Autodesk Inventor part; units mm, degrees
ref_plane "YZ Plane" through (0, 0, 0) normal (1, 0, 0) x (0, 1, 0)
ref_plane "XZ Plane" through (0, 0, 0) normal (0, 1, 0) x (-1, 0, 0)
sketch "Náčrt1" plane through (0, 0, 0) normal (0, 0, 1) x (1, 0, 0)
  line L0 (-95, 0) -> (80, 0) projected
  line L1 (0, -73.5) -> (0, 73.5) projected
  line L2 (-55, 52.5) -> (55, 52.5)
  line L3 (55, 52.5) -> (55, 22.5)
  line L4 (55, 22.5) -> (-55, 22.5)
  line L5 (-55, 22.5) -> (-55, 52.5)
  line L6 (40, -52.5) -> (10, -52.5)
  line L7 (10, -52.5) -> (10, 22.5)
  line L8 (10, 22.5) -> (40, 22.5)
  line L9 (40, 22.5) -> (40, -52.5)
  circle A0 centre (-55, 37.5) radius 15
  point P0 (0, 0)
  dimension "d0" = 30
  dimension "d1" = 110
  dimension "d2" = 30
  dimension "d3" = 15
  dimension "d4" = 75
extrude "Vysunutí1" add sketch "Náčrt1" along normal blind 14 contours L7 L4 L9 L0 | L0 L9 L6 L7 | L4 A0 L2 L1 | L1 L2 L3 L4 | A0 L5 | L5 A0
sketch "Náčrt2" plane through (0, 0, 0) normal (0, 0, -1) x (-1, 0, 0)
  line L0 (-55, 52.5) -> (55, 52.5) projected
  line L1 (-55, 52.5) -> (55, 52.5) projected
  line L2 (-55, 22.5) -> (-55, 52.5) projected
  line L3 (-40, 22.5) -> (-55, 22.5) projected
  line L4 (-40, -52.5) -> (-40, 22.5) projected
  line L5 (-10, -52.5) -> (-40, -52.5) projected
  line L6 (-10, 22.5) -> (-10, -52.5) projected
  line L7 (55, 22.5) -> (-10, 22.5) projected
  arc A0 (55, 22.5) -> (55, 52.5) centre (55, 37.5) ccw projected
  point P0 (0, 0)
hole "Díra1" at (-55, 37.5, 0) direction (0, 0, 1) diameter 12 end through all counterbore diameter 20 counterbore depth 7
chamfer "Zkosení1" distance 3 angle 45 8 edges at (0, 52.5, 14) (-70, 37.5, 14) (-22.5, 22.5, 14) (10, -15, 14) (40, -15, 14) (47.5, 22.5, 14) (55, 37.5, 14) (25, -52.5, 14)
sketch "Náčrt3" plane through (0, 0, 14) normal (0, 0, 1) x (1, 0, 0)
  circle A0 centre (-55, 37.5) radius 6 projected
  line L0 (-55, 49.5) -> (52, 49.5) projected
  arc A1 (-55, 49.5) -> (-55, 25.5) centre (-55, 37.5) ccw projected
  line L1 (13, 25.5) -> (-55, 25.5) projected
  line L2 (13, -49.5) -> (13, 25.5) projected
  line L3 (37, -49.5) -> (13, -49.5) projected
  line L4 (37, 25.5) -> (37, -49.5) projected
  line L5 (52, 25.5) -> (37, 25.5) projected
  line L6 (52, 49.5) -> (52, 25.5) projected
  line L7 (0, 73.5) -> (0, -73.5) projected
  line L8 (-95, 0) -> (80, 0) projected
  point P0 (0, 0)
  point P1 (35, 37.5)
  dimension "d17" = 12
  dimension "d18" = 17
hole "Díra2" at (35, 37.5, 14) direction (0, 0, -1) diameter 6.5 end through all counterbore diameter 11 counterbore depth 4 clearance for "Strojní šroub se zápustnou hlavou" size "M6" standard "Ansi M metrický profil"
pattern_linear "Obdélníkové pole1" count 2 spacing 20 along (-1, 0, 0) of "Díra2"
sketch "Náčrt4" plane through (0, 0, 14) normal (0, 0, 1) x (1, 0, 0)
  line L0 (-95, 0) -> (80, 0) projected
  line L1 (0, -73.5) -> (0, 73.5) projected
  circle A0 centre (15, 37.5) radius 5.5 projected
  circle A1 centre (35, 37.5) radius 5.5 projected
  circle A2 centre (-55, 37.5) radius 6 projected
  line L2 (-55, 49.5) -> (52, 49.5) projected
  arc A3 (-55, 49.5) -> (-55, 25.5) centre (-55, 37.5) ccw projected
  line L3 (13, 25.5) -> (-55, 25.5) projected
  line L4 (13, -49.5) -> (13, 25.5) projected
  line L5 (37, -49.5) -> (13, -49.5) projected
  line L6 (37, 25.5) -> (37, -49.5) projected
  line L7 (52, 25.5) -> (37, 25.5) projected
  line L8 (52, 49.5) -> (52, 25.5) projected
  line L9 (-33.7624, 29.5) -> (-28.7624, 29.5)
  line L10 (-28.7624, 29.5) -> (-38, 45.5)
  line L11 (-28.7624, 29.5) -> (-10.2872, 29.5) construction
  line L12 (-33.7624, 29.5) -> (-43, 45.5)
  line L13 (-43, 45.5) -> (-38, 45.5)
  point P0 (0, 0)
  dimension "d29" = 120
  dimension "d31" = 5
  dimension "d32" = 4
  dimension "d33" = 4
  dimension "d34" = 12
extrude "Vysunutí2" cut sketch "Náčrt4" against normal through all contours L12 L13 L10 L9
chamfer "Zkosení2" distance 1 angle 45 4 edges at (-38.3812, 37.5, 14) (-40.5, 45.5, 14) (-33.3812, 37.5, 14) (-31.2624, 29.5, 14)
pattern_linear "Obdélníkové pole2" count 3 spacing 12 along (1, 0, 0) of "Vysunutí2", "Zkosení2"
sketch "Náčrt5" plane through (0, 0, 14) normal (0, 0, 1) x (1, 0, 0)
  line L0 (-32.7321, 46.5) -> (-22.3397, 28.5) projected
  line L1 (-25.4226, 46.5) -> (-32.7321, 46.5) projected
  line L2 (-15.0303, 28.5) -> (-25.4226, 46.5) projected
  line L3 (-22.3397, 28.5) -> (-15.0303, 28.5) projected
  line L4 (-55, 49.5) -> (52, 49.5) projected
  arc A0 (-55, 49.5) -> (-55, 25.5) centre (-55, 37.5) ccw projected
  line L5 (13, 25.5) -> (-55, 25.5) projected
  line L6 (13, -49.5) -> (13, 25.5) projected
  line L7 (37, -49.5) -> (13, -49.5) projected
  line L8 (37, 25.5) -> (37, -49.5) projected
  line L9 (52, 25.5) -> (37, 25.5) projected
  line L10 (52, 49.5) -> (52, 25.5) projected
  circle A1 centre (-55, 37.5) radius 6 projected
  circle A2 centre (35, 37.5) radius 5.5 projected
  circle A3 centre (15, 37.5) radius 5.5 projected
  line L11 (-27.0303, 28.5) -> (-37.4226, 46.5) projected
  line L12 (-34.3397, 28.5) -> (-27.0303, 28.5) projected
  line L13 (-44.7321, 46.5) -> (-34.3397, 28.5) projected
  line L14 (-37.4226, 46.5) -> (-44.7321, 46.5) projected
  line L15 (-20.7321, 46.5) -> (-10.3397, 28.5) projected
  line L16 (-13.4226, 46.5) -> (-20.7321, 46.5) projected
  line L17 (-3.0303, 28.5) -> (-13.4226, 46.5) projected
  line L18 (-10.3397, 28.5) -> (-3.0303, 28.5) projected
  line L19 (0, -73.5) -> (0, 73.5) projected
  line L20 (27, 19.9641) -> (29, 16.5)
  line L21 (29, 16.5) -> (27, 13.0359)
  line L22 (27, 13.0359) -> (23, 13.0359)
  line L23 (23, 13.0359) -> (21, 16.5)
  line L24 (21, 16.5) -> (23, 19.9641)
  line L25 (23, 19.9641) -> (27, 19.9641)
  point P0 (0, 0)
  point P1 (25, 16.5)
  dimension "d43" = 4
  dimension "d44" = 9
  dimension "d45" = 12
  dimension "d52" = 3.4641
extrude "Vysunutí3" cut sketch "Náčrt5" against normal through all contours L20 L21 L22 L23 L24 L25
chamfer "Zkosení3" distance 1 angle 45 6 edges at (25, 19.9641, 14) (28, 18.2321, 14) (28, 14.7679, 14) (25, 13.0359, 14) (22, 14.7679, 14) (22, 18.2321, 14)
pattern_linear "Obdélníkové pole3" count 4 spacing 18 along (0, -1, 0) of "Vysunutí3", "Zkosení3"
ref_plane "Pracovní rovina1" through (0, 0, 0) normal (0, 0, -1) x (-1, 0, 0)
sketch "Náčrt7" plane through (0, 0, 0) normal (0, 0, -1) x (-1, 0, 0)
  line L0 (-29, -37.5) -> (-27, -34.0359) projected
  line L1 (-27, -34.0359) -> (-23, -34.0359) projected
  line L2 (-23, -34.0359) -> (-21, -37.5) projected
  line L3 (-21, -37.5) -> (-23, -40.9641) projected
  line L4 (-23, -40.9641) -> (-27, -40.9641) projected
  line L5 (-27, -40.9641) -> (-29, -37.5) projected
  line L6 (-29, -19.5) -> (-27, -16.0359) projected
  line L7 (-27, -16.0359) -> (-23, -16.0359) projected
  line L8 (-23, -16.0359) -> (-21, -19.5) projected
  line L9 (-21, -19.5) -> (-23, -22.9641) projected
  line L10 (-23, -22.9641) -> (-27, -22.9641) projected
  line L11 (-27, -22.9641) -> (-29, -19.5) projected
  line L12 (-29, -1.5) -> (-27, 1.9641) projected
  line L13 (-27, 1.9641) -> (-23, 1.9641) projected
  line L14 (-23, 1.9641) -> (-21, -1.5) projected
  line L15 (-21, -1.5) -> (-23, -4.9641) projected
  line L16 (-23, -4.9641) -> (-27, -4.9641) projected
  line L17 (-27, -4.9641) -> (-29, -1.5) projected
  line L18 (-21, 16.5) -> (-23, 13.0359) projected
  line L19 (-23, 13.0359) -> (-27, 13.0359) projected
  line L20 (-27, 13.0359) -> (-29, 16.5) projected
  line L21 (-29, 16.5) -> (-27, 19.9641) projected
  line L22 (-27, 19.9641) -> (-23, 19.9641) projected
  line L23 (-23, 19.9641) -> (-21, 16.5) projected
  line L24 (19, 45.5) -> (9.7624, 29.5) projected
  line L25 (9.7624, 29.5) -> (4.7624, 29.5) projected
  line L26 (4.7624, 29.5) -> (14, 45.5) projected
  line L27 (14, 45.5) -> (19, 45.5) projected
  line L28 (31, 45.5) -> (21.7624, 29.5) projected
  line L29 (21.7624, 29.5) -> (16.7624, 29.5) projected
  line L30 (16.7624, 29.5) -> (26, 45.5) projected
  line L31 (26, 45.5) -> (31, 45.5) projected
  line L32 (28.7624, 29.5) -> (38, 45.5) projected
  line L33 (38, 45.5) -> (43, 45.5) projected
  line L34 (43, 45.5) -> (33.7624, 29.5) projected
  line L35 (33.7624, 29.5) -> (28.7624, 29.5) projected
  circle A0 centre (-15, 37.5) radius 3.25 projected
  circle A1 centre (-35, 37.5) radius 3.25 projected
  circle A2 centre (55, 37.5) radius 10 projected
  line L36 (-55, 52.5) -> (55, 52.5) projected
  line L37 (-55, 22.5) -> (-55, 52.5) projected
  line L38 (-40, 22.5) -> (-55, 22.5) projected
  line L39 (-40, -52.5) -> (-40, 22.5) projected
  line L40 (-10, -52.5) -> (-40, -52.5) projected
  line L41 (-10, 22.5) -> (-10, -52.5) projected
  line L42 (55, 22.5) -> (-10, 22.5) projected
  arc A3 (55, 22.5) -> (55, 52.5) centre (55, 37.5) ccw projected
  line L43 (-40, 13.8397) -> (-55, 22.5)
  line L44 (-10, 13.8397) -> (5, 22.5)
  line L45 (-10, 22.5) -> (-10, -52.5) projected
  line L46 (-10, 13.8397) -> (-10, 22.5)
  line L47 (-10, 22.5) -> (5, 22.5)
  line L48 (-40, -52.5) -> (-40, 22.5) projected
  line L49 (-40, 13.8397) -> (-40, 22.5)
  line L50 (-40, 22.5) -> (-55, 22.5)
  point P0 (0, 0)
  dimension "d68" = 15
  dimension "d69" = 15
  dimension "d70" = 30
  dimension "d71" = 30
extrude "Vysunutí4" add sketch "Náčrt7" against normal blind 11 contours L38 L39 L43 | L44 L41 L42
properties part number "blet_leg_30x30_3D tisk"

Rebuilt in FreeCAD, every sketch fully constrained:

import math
import FreeCAD as App
import Part
import Sketcher
Q = App.Units.Quantity


def edges_at(feature, points):
    """Names of the edges that pass closest to the given points."""
    edges = feature.Shape.Edges
    near = lambda p: min(range(len(edges)), key=lambda i: edges[i].distToShape(Part.Vertex(*p))[0])
    return sorted({f"Edge{near(p) + 1}" for p in points})


def add_polygon(sketch, points):
    """Adds a closed chain of lines whose ends are joined by coincident constraints."""
    first, n = sketch.GeometryCount, len(points)
    for a, b in zip(points, points[1:] + points[:1]):
        sketch.addGeometry(Part.LineSegment(App.Vector(*a, 0), App.Vector(*b, 0)), False)
    for i in range(n):
        sketch.addConstraint(Sketcher.Constraint("Coincident", first + i, 2, first + (i + 1) % n, 1))

doc = App.newDocument("Part")
params = doc.addObject("Spreadsheet::Sheet", "Params")
for row, (alias, value) in enumerate([
    ("sketch1_radius", "15 mm"),
    ("sketch1_width", "15 mm"),
    ("sketch1_width2", "110 mm"),
    ("sketch1_height", "75 mm"),
    ("pad1_length", "14 mm"),
    ("sketch2_diameter", "12 mm"),
    ("hole_diameter", "12 mm"),
    ("hole_cbore_diameter", "20 mm"),
    ("hole_cbore_depth", "7 mm"),
    ("chamfer_size", "3 mm"),
    ("sketch3_diameter", "6.5 mm"),
    ("hole2_diameter", "6.5 mm"),
    ("hole2_cbore_diameter", "11 mm"),
    ("hole2_cbore_depth", "4 mm"),
    ("linearpattern_pitch", "20 mm"),
    ("sketch4_width", "5 mm"),
    ("chamfer2_size", "1 mm"),
    ("linearpattern2_pitch", "12 mm"),
    ("sketch5_width", "4 mm"),
    ("sketch5_length", "4 mm"),
    ("chamfer3_size", "1 mm"),
    ("linearpattern3_pitch", "18 mm"),
    ("sketch6_width", "15 mm"),
    ("pad2_length", "11 mm"),
], start=1):
    params.set(f"A{row}", alias)
    params.set(f"B{row}", "=" + value)
    params.setAlias(f"B{row}", alias)

body = doc.addObject("PartDesign::Body", "Body")

sketch1 = body.newObject("Sketcher::SketchObject", "Sketch")
sketch1.AttachmentSupport = (doc.getObject("XY_Plane"), [""])
sketch1.MapMode = "FlatFace"
sketch1.addGeometry(Part.LineSegment(App.Vector(10, 22, 0), App.Vector(10, -52, 0)), False)
sketch1.addGeometry(Part.LineSegment(App.Vector(10, -52, 0), App.Vector(40, -52, 0)), False)
sketch1.addGeometry(Part.LineSegment(App.Vector(40, -52, 0), App.Vector(40, 22, 0)), False)
sketch1.addGeometry(Part.LineSegment(App.Vector(40, 22, 0), App.Vector(55, 22, 0)), False)
sketch1.addGeometry(Part.LineSegment(App.Vector(55, 22, 0), App.Vector(55, 52, 0)), False)
sketch1.addGeometry(Part.LineSegment(App.Vector(55, 52, 0), App.Vector(-55, 52, 0)), False)
sketch1.addGeometry(Part.ArcOfCircle(Part.Circle(App.Vector(-55, 38, 0), App.Vector(0, 0, 1), 15), math.radians(90), math.radians(270)), False)
sketch1.addGeometry(Part.LineSegment(App.Vector(-55, 22, 0), App.Vector(10, 22, 0)), False)
sketch1.addConstraint(Sketcher.Constraint("Coincident", 0, 2, 1, 1))
sketch1.addConstraint(Sketcher.Constraint("Coincident", 1, 2, 2, 1))
sketch1.addConstraint(Sketcher.Constraint("Coincident", 2, 2, 3, 1))
sketch1.addConstraint(Sketcher.Constraint("Coincident", 3, 2, 4, 1))
sketch1.addConstraint(Sketcher.Constraint("Coincident", 4, 2, 5, 1))
sketch1.addConstraint(Sketcher.Constraint("Tangent", 5, 2, 6, 1))
sketch1.addConstraint(Sketcher.Constraint("Tangent", 6, 2, 7, 1))
sketch1.addConstraint(Sketcher.Constraint("Coincident", 7, 2, 0, 1))
sketch1.addConstraint(Sketcher.Constraint("Vertical", 0))
sketch1.addConstraint(Sketcher.Constraint("Horizontal", 1))
sketch1.addConstraint(Sketcher.Constraint("Vertical", 2))
sketch1.addConstraint(Sketcher.Constraint("Horizontal", 3))
sketch1.addConstraint(Sketcher.Constraint("Vertical", 4))
sketch1.addConstraint(Sketcher.Constraint("Horizontal", 5))
sketch1.addConstraint(Sketcher.Constraint("Horizontal", 7))
sketch1.addConstraint(Sketcher.Constraint("Symmetric", 3, 2, 6, 2, -2))
sketch1.addConstraint(Sketcher.Constraint("Equal", 1, 4))
sketch1.addConstraint(Sketcher.Constraint("Radius", 6, 15.0))
sketch1.addConstraint(Sketcher.Constraint("DistanceX", 3, 1, 3, 2, 15.0))
sketch1.addConstraint(Sketcher.Constraint("DistanceX", 5, 2, 5, 1, 110.0))
sketch1.addConstraint(Sketcher.Constraint("DistanceY", 0, 2, 0, 1, 75.0))
sketch1.addConstraint(Sketcher.Constraint("DistanceY", -1, 1, 6, 3, 37.5))
sketch1.setExpression("Constraints[17]", "Params.sketch1_radius")
sketch1.setExpression("Constraints[18]", "Params.sketch1_width")
sketch1.setExpression("Constraints[19]", "Params.sketch1_width2")
sketch1.setExpression("Constraints[20]", "Params.sketch1_height")
pad1 = body.newObject("PartDesign::Pad", "Pad")
pad1.Profile = sketch1
pad1.setExpression("Length", "Params.pad1_length")

sketch2 = body.newObject("Sketcher::SketchObject", "Sketch001")
sketch2.AttachmentSupport = (doc.getObject("XY_Plane"), [""])
sketch2.MapMode = "FlatFace"
sketch2.addGeometry(Part.Circle(App.Vector(-55, 38, 0), App.Vector(0, 0, 1), 6), False)
sketch2.addConstraint(Sketcher.Constraint("Diameter", 0, 12.0))
sketch2.addConstraint(Sketcher.Constraint("DistanceX", 0, 3, -1, 1, 55.0))
sketch2.addConstraint(Sketcher.Constraint("DistanceY", -1, 1, 0, 3, 37.5))
sketch2.setExpression("Constraints[0]", "Params.sketch2_diameter")
doc.recompute()
hole = body.newObject("PartDesign::Hole", "Hole")
hole.Profile = sketch2
hole.ThreadType = "None"
hole.setExpression("Diameter", "Params.hole_diameter")
hole.DepthType = "ThroughAll"
hole.HoleCutType = "Counterbore"
hole.setExpression("HoleCutDiameter", "Params.hole_cbore_diameter")
hole.setExpression("HoleCutDepth", "Params.hole_cbore_depth")
hole.Reversed = True
doc.recompute()

chamfer = body.newObject("PartDesign::Chamfer", "Chamfer")
chamfer.Base = (hole, edges_at(hole, [
    (0, 52.5, 14),
    (-70, 37.5, 14),
    (-22.5, 22.5, 14),
    (10, -15, 14),
    (40, -15, 14),
    (47.5, 22.5, 14),
    (55, 37.5, 14),
    (25, -52.5, 14),
]))
chamfer.setExpression("Size", "Params.chamfer_size")

sketch3 = body.newObject("Sketcher::SketchObject", "Sketch002")
sketch3.AttachmentSupport = (doc.getObject("XY_Plane"), [""])
sketch3.MapMode = "FlatFace"
sketch3.AttachmentOffset = App.Placement(App.Vector(0, 0, 14), App.Rotation())
sketch3.addGeometry(Part.Circle(App.Vector(35, 37.5, 0), App.Vector(0, 0, 1), 3.2), False)
sketch3.addConstraint(Sketcher.Constraint("Diameter", 0, 6.5))
sketch3.addConstraint(Sketcher.Constraint("DistanceX", -1, 1, 0, 3, 35.0))
sketch3.addConstraint(Sketcher.Constraint("DistanceY", -1, 1, 0, 3, 37.5))
sketch3.setExpression("Constraints[0]", "Params.sketch3_diameter")
doc.recompute()
hole2 = body.newObject("PartDesign::Hole", "Hole001")
hole2.Profile = sketch3
hole2.ThreadType = "None"
hole2.setExpression("Diameter", "Params.hole2_diameter")
hole2.DepthType = "ThroughAll"
hole2.HoleCutType = "Counterbore"
hole2.setExpression("HoleCutDiameter", "Params.hole2_cbore_diameter")
hole2.setExpression("HoleCutDepth", "Params.hole2_cbore_depth")
doc.recompute()

linearpattern = body.newObject("PartDesign::LinearPattern", "LinearPattern")
linearpattern.Originals = [hole2]
linearpattern.Direction = (doc.getObject("X_Axis"), [""])
linearpattern.Mode = "offset"
linearpattern.setExpression("Offset", "Params.linearpattern_pitch")
linearpattern.Occurrences = 2
linearpattern.Reversed = True
body.Tip = linearpattern

sketch4 = body.newObject("Sketcher::SketchObject", "Sketch003")
sketch4.AttachmentSupport = (doc.getObject("XY_Plane"), [""])
sketch4.MapMode = "FlatFace"
sketch4.AttachmentOffset = App.Placement(App.Vector(0, 0, 14), App.Rotation())
add_polygon(sketch4, [(-43, 46), (-34, 30), (-29, 30), (-38, 46)])
sketch4.addConstraint(Sketcher.Constraint("Horizontal", 1))
sketch4.addConstraint(Sketcher.Constraint("Horizontal", 3))
sketch4.addConstraint(Sketcher.Constraint("Parallel", 0, 2))
sketch4.addConstraint(Sketcher.Constraint("DistanceX", 1, 1, 1, 2, 5.0))
sketch4.addConstraint(Sketcher.Constraint("Angle", 2, Q("120 deg")))
sketch4.addConstraint(Sketcher.Constraint("DistanceX", 2, 2, -1, 1, 38.0))
sketch4.addConstraint(Sketcher.Constraint("DistanceY", 0, 2, 2, 2, 16.0))
sketch4.addConstraint(Sketcher.Constraint("DistanceY", -1, 1, 0, 2, 29.5))
sketch4.setExpression("Constraints[7]", "Params.sketch4_width")
pocket1 = body.newObject("PartDesign::Pocket", "Pocket")
pocket1.Profile = sketch4
pocket1.Type = "ThroughAll"
doc.recompute()

chamfer2 = body.newObject("PartDesign::Chamfer", "Chamfer001")
chamfer2.Base = (pocket1, edges_at(pocket1, [
    (-38.381, 37.5, 14),
    (-40.5, 45.5, 14),
    (-33.381, 37.5, 14),
    (-31.262, 29.5, 14),
]))
chamfer2.setExpression("Size", "Params.chamfer2_size")
doc.recompute()

linearpattern2 = body.newObject("PartDesign::LinearPattern", "LinearPattern001")
linearpattern2.Originals = [pocket1, chamfer2]
linearpattern2.Direction = (doc.getObject("X_Axis"), [""])
linearpattern2.Mode = "offset"
linearpattern2.setExpression("Offset", "Params.linearpattern2_pitch")
linearpattern2.Occurrences = 3
body.Tip = linearpattern2

sketch5 = body.newObject("Sketcher::SketchObject", "Sketch004")
sketch5.AttachmentSupport = (doc.getObject("XY_Plane"), [""])
sketch5.MapMode = "FlatFace"
sketch5.AttachmentOffset = App.Placement(App.Vector(0, 0, 14), App.Rotation())
add_polygon(sketch5, [(29, 16.5), (27, 20), (23, 20), (21, 16.5), (23, 13), (27, 13)])
sketch5.addConstraint(Sketcher.Constraint("Horizontal", 1))
sketch5.addConstraint(Sketcher.Constraint("Horizontal", 4))
sketch5.addConstraint(Sketcher.Constraint("Parallel", 0, 3))
sketch5.addConstraint(Sketcher.Constraint("Parallel", 2, 5))
sketch5.addConstraint(Sketcher.Constraint("Horizontal", 2, 2, 5, 2))
sketch5.addConstraint(Sketcher.Constraint("Vertical", 1, 2, 3, 2))
sketch5.addConstraint(Sketcher.Constraint("Vertical", 0, 2, 4, 2))
sketch5.addConstraint(Sketcher.Constraint("DistanceX", 1, 2, 1, 1, 4.0))
sketch5.addConstraint(Sketcher.Constraint("Distance", 0, 4.0))
sketch5.addConstraint(Sketcher.Constraint("Angle", 0, Q("120 deg")))
sketch5.addConstraint(Sketcher.Constraint("DistanceX", -1, 1, 0, 2, 27.0))
sketch5.addConstraint(Sketcher.Constraint("DistanceY", -1, 1, 2, 2, 16.5))
sketch5.setExpression("Constraints[13]", "Params.sketch5_width")
sketch5.setExpression("Constraints[14]", "Params.sketch5_length")
pocket2 = body.newObject("PartDesign::Pocket", "Pocket001")
pocket2.Profile = sketch5
pocket2.Type = "ThroughAll"
doc.recompute()

chamfer3 = body.newObject("PartDesign::Chamfer", "Chamfer002")
chamfer3.Base = (pocket2, edges_at(pocket2, [
    (25, 19.964, 14),
    (28, 18.232, 14),
    (28, 14.768, 14),
    (25, 13.036, 14),
    (22, 14.768, 14),
    (22, 18.232, 14),
]))
chamfer3.setExpression("Size", "Params.chamfer3_size")
doc.recompute()

linearpattern3 = body.newObject("PartDesign::LinearPattern", "LinearPattern002")
linearpattern3.Originals = [pocket2, chamfer3]
linearpattern3.Direction = (doc.getObject("Y_Axis"), [""])
linearpattern3.Mode = "offset"
linearpattern3.setExpression("Offset", "Params.linearpattern3_pitch")
linearpattern3.Occurrences = 4
linearpattern3.Reversed = True
body.Tip = linearpattern3

sketch6 = body.newObject("Sketcher::SketchObject", "Sketch005")
sketch6.AttachmentSupport = (doc.getObject("XY_Plane"), [""])
sketch6.MapMode = "FlatFace"
add_polygon(sketch6, [(40, 22), (55, 22), (40, 14)])
add_polygon(sketch6, [(10, 14), (-5, 22), (10, 22)])
sketch6.addConstraint(Sketcher.Constraint("Horizontal", 0))
sketch6.addConstraint(Sketcher.Constraint("Vertical", 2))
sketch6.addConstraint(Sketcher.Constraint("Horizontal", 4))
sketch6.addConstraint(Sketcher.Constraint("Vertical", 5))
sketch6.addConstraint(Sketcher.Constraint("Horizontal", 2, 2, 3, 2))
sketch6.addConstraint(Sketcher.Constraint("Horizontal", 1, 2, 5, 2))
sketch6.addConstraint(Sketcher.Constraint("Equal", 0, 4))
sketch6.addConstraint(Sketcher.Constraint("DistanceX", 0, 1, 0, 2, 15.0))
sketch6.addConstraint(Sketcher.Constraint("DistanceX", 4, 2, 2, 2, 30.0))
sketch6.addConstraint(Sketcher.Constraint("Angle", 1, Q("-149.9999 deg")))
sketch6.addConstraint(Sketcher.Constraint("DistanceX", -1, 1, 0, 2, 55.0))
sketch6.addConstraint(Sketcher.Constraint("DistanceY", -1, 1, 0, 2, 22.5))
sketch6.setExpression("Constraints[13]", "Params.sketch6_width")
pad2 = body.newObject("PartDesign::Pad", "Pad001")
pad2.Profile = sketch6
pad2.setExpression("Length", "Params.pad2_length")

doc.recompute()
